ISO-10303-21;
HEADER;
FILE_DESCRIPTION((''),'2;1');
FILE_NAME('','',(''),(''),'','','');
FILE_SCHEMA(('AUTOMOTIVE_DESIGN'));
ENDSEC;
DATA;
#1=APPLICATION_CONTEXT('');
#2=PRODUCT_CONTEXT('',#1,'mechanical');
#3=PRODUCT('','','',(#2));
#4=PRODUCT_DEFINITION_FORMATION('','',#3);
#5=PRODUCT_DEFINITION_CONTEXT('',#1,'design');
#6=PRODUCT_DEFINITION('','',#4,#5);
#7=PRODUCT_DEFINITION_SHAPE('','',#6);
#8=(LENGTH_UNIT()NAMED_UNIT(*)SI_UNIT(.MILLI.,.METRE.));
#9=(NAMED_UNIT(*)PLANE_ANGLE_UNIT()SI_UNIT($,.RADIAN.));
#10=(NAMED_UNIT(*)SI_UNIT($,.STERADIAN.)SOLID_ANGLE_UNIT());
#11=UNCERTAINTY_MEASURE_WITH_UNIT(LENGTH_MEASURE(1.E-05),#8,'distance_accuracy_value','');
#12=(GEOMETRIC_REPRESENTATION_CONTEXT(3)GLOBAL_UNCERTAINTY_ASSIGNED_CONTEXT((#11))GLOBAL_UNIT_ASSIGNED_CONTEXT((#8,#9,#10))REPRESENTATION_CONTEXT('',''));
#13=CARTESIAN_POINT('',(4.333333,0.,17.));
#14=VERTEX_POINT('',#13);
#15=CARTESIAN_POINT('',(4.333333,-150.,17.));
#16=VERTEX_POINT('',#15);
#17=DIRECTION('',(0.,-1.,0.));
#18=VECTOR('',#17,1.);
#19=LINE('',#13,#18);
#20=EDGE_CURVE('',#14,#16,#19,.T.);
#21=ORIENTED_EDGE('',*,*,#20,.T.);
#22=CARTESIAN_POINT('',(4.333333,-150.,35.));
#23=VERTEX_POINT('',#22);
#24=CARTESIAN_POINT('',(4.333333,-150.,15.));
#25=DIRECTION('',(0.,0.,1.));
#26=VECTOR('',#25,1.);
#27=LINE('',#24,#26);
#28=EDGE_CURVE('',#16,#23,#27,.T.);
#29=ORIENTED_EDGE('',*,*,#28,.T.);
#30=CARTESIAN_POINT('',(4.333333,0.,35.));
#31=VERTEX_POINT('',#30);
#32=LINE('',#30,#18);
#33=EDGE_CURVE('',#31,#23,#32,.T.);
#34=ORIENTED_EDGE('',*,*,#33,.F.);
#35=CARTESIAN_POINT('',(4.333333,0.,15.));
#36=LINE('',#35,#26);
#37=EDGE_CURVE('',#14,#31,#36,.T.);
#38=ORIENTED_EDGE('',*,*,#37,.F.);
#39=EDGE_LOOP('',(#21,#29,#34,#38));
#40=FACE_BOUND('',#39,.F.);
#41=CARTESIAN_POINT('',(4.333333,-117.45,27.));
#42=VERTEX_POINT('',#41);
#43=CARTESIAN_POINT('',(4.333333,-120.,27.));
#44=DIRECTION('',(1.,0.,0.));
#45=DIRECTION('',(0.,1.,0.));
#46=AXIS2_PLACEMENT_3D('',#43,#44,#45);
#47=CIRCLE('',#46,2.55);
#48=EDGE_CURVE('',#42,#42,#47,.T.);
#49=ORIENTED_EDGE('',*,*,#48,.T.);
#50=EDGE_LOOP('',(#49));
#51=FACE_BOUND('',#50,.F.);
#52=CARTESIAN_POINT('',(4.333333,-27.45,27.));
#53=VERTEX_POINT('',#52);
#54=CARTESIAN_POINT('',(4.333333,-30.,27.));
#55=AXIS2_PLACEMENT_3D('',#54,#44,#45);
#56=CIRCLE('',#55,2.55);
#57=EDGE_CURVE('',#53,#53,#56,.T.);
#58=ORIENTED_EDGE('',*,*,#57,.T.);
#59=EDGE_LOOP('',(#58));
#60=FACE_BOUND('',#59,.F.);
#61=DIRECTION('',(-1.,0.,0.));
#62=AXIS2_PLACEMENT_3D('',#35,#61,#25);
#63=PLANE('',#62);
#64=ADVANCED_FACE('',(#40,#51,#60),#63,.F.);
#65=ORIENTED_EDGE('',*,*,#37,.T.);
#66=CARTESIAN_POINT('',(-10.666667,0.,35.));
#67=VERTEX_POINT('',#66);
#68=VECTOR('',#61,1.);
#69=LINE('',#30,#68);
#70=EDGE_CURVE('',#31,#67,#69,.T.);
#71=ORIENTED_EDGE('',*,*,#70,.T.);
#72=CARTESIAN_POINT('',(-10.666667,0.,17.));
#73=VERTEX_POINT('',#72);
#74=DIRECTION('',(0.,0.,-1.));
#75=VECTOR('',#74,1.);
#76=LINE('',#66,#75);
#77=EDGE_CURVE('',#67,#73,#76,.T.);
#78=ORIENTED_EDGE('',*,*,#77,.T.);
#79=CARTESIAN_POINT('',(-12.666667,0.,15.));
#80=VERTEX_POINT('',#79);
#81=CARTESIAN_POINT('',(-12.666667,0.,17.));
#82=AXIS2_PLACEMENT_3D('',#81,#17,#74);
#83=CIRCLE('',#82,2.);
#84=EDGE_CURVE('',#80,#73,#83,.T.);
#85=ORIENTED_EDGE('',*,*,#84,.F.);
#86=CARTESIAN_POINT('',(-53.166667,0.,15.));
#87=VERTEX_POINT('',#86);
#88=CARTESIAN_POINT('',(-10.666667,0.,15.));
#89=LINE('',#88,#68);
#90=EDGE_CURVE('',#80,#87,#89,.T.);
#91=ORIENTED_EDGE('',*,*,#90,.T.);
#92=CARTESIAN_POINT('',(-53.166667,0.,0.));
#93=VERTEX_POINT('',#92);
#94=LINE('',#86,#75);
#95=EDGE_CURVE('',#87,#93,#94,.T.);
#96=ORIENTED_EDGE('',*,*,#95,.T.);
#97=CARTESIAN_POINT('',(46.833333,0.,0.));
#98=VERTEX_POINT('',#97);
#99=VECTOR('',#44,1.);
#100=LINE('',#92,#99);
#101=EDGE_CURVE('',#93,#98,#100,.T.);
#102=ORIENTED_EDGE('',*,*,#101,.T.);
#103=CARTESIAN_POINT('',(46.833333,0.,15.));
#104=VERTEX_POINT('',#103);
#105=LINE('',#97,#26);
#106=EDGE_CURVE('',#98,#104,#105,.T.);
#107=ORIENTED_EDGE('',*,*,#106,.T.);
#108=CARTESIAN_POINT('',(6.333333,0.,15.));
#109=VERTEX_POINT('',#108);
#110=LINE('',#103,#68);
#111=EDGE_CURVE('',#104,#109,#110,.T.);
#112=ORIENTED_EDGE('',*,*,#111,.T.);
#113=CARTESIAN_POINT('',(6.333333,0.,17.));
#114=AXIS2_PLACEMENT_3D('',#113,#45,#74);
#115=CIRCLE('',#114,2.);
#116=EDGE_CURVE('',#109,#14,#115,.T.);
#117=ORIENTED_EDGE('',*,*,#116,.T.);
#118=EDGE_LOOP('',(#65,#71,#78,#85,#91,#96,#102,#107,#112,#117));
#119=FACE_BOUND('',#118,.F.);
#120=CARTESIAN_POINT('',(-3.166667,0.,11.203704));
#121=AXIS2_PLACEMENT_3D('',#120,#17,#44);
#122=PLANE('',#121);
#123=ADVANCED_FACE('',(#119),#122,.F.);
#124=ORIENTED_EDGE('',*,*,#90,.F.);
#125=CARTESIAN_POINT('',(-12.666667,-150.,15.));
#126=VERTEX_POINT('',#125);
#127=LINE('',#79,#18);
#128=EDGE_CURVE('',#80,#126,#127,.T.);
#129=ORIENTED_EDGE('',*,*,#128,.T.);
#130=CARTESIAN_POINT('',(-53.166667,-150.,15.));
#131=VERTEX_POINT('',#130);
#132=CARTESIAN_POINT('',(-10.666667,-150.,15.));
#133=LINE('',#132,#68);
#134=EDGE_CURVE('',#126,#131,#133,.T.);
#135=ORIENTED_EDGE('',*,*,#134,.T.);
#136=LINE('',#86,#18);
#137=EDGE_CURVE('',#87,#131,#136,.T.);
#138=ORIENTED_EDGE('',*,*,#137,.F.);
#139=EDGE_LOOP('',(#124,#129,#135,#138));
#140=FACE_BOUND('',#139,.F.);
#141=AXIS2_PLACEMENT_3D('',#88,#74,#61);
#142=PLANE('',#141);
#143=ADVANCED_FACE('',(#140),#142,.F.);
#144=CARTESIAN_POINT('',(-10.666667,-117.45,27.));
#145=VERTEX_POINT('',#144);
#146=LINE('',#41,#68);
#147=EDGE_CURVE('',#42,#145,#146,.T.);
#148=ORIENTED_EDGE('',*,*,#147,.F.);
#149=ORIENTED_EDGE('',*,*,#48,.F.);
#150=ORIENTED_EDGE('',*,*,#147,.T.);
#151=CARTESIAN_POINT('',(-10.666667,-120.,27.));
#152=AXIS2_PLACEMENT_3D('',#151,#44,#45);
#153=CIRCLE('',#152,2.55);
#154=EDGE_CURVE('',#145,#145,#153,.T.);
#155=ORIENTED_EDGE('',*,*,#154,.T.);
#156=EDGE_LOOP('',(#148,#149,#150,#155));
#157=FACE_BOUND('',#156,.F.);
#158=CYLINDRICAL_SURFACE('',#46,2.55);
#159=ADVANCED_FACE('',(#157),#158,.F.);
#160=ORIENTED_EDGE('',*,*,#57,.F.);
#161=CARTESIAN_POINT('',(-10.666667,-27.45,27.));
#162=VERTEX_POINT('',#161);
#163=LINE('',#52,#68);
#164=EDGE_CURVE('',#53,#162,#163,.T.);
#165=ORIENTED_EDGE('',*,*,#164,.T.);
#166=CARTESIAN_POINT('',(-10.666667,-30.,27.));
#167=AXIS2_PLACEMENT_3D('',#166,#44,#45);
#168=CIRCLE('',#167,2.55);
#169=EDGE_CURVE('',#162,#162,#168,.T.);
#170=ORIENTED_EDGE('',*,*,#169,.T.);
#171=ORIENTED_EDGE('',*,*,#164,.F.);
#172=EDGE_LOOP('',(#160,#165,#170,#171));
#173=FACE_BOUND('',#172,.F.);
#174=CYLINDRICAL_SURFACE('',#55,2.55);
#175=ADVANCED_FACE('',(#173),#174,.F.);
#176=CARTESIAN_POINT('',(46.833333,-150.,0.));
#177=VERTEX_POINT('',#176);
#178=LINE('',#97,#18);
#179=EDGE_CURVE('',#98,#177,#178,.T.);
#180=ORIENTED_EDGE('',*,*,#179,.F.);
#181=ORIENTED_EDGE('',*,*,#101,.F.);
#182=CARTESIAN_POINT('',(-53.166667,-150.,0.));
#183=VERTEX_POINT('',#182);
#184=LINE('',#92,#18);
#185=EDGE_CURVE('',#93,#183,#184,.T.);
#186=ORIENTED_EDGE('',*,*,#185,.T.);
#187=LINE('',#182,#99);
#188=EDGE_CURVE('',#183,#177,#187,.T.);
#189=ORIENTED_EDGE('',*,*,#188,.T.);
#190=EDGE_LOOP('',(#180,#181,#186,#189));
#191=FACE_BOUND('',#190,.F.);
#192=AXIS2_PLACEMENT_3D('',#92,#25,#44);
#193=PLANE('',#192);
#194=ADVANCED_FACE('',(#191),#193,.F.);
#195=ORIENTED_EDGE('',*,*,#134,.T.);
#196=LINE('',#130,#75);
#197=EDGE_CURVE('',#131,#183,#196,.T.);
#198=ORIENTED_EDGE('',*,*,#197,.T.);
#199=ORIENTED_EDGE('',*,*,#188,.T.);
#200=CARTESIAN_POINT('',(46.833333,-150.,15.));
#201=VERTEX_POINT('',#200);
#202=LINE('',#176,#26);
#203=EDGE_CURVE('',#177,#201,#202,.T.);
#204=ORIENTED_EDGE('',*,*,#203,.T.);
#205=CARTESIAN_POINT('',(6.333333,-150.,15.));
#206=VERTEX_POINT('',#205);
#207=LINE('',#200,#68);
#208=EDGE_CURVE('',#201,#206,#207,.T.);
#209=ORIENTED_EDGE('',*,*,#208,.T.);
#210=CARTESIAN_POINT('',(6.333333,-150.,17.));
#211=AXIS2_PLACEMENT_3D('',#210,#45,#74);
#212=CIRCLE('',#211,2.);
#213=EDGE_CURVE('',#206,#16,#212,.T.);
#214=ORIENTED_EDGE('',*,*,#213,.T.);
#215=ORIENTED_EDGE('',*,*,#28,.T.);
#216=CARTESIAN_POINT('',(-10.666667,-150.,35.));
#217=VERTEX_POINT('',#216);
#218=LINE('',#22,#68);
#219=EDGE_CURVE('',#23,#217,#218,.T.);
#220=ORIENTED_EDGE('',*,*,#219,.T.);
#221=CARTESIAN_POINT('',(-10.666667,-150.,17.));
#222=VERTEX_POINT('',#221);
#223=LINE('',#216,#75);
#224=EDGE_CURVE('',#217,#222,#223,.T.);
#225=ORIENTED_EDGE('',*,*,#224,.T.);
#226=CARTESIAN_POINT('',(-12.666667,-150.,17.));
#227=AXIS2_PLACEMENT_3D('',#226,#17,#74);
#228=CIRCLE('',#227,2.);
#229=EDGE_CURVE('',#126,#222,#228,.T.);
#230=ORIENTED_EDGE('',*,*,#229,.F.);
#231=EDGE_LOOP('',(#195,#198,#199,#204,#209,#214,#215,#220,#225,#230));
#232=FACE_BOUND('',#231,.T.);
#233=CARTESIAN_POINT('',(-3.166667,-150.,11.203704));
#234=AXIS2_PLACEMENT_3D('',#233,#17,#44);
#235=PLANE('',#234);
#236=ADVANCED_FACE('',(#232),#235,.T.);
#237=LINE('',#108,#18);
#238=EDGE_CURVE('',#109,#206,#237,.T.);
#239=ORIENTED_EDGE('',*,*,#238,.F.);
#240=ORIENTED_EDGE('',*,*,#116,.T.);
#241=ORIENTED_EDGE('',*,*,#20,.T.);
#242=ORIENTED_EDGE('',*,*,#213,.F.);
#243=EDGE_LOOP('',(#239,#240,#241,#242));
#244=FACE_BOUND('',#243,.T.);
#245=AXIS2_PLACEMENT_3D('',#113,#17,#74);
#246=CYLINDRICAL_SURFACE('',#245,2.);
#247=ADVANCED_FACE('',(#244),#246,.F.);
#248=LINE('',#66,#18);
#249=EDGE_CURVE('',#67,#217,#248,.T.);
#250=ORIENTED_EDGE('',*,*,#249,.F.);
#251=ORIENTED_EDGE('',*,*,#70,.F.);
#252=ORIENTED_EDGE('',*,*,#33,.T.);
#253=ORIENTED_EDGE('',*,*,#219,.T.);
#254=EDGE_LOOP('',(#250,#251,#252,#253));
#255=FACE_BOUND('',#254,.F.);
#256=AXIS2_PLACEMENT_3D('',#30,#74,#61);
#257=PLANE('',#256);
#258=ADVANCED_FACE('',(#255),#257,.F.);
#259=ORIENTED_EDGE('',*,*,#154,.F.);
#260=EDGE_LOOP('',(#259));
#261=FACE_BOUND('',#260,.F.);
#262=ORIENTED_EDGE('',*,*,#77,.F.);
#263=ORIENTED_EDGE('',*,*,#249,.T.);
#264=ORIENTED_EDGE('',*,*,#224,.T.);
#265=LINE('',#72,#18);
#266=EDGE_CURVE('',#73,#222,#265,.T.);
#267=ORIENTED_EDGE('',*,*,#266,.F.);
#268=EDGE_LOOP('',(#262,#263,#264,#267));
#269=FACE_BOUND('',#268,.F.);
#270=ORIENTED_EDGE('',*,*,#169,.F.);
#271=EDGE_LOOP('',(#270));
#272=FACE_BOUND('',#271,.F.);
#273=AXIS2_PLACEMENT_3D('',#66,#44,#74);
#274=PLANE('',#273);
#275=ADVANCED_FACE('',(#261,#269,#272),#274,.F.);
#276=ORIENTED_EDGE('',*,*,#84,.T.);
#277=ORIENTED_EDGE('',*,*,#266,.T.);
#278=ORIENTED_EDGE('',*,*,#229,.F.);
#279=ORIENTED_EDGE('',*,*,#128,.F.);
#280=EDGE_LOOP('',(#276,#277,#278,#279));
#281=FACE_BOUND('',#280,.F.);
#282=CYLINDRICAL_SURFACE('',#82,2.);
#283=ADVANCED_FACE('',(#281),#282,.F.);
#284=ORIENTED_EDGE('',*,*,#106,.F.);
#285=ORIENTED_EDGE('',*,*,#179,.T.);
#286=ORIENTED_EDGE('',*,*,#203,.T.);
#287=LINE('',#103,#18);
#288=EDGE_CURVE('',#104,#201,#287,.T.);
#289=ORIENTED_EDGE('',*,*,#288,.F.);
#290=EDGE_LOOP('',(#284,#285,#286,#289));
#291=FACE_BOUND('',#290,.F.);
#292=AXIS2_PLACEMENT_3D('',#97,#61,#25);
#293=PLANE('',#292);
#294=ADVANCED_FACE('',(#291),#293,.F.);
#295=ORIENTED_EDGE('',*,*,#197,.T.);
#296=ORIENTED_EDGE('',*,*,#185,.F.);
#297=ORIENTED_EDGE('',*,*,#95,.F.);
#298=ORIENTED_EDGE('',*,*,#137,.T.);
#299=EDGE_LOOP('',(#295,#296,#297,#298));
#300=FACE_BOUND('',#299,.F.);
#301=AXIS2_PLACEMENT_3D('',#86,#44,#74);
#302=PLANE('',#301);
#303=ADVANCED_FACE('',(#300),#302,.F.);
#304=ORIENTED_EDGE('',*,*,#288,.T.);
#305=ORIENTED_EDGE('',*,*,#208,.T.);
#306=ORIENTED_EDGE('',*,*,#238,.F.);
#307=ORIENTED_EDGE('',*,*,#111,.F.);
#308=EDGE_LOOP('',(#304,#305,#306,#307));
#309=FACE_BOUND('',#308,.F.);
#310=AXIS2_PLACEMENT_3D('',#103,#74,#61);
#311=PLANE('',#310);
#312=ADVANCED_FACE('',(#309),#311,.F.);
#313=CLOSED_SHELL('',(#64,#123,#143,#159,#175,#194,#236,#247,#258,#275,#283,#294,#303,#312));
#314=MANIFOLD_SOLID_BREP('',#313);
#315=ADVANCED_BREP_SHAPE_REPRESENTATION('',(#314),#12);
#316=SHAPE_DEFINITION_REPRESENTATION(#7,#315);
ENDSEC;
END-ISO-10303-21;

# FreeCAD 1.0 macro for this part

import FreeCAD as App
import Part
import Sketcher

V = App.Vector


def edges_at(feature, points):
    """Names of the edges that pass closest to the given points."""
    edges = feature.Shape.Edges
    near = lambda p: min(range(len(edges)), key=lambda i: edges[i].distToShape(Part.Vertex(*p))[0])
    return sorted({f"Edge{near(p) + 1}" for p in points})


def add_polygon(sketch, points):
    """Adds a closed chain of lines whose ends are joined by coincident constraints."""
    first, n = sketch.GeometryCount, len(points)
    for a, b in zip(points, points[1:] + points[:1]):
        sketch.addGeometry(Part.LineSegment(App.Vector(*a, 0), App.Vector(*b, 0)), False)
    for i in range(n):
        sketch.addConstraint(Sketcher.Constraint("Coincident", first + i, 2, first + (i + 1) % n, 1))

doc = App.newDocument("Part")
body = doc.addObject("PartDesign::Body", "Body")

# Sketch on XZ plane
sketch1 = doc.addObject("Sketcher::SketchObject", "Sketch")
body.addObject(sketch1)
sketch1.AttachmentSupport = (doc.XZ_Plane, [""])
sketch1.MapMode = "FlatFace"
add_polygon(sketch1, [(-53, 15), (-53, 0), (47, 0), (47, 15), (4, 15), (4, 35), (-11, 35), (-11, 15)])  # lines 0-7
sketch1.addConstraint([
    Sketcher.Constraint("Vertical", 0),
    Sketcher.Constraint("Horizontal", 1),
    Sketcher.Constraint("Vertical", 2),
    Sketcher.Constraint("Horizontal", 3),
    Sketcher.Constraint("Vertical", 4),
    Sketcher.Constraint("Horizontal", 5),
    Sketcher.Constraint("Vertical", 6),
    Sketcher.Constraint("Horizontal", 7),
    Sketcher.Constraint("PointOnObject", 0, 2, -1),
    Sketcher.Constraint("Horizontal", 3, 2, 6, 2),
    Sketcher.Constraint("Equal", 3, 7),
    Sketcher.Constraint("Equal", 5, 0),
    Sketcher.Constraint("DistanceX", 1, 1, 1, 2, 100.0),
    Sketcher.Constraint("DistanceX", 5, 2, 5, 1, 15.0),
    Sketcher.Constraint("DistanceY", 4, 1, 4, 2, 20.0),
    Sketcher.Constraint("DistanceX", 0, 2, -1, 1, 53.166667),
])
pad1 = doc.addObject("PartDesign::Pad", "Pad")
body.addObject(pad1)
pad1.Profile = sketch1
pad1.Length = 150

# Sketch on YZ plane
sketch2 = doc.addObject("Sketcher::SketchObject", "Sketch001")
body.addObject(sketch2)
sketch2.AttachmentSupport = (doc.YZ_Plane, [""])
sketch2.MapMode = "FlatFace"
sketch2.AttachmentOffset = App.Placement(V(0, 0, 4.333333), App.Rotation())
sketch2.addGeometry([
    Part.Circle(V(-120, 27, 0), V(0, 0, 1), 2.5),
    Part.Circle(V(-30, 27, 0), V(0, 0, 1), 2.5),
], False)
sketch2.addConstraint([
    Sketcher.Constraint("Equal", 0, 1),
    Sketcher.Constraint("Horizontal", 0, 3, 1, 3),
    Sketcher.Constraint("Diameter", 0, 5.1),
    Sketcher.Constraint("DistanceX", 0, 3, -1, 1, 120.0),
    Sketcher.Constraint("DistanceY", -1, 1, 0, 3, 27.0),
    Sketcher.Constraint("DistanceX", 1, 3, -1, 1, 30.0),
])
pocket1 = doc.addObject("PartDesign::Pocket", "Pocket")
body.addObject(pocket1)
pocket1.Profile = sketch2
pocket1.Type = "ThroughAll"
doc.recompute()

fillet = doc.addObject("PartDesign::Fillet", "Fillet")
body.addObject(fillet)
fillet.Base = (pocket1, edges_at(pocket1, [(-10.667, -75, 15), (4.333, -75, 15)]))
fillet.Radius = 2

doc.recompute()
